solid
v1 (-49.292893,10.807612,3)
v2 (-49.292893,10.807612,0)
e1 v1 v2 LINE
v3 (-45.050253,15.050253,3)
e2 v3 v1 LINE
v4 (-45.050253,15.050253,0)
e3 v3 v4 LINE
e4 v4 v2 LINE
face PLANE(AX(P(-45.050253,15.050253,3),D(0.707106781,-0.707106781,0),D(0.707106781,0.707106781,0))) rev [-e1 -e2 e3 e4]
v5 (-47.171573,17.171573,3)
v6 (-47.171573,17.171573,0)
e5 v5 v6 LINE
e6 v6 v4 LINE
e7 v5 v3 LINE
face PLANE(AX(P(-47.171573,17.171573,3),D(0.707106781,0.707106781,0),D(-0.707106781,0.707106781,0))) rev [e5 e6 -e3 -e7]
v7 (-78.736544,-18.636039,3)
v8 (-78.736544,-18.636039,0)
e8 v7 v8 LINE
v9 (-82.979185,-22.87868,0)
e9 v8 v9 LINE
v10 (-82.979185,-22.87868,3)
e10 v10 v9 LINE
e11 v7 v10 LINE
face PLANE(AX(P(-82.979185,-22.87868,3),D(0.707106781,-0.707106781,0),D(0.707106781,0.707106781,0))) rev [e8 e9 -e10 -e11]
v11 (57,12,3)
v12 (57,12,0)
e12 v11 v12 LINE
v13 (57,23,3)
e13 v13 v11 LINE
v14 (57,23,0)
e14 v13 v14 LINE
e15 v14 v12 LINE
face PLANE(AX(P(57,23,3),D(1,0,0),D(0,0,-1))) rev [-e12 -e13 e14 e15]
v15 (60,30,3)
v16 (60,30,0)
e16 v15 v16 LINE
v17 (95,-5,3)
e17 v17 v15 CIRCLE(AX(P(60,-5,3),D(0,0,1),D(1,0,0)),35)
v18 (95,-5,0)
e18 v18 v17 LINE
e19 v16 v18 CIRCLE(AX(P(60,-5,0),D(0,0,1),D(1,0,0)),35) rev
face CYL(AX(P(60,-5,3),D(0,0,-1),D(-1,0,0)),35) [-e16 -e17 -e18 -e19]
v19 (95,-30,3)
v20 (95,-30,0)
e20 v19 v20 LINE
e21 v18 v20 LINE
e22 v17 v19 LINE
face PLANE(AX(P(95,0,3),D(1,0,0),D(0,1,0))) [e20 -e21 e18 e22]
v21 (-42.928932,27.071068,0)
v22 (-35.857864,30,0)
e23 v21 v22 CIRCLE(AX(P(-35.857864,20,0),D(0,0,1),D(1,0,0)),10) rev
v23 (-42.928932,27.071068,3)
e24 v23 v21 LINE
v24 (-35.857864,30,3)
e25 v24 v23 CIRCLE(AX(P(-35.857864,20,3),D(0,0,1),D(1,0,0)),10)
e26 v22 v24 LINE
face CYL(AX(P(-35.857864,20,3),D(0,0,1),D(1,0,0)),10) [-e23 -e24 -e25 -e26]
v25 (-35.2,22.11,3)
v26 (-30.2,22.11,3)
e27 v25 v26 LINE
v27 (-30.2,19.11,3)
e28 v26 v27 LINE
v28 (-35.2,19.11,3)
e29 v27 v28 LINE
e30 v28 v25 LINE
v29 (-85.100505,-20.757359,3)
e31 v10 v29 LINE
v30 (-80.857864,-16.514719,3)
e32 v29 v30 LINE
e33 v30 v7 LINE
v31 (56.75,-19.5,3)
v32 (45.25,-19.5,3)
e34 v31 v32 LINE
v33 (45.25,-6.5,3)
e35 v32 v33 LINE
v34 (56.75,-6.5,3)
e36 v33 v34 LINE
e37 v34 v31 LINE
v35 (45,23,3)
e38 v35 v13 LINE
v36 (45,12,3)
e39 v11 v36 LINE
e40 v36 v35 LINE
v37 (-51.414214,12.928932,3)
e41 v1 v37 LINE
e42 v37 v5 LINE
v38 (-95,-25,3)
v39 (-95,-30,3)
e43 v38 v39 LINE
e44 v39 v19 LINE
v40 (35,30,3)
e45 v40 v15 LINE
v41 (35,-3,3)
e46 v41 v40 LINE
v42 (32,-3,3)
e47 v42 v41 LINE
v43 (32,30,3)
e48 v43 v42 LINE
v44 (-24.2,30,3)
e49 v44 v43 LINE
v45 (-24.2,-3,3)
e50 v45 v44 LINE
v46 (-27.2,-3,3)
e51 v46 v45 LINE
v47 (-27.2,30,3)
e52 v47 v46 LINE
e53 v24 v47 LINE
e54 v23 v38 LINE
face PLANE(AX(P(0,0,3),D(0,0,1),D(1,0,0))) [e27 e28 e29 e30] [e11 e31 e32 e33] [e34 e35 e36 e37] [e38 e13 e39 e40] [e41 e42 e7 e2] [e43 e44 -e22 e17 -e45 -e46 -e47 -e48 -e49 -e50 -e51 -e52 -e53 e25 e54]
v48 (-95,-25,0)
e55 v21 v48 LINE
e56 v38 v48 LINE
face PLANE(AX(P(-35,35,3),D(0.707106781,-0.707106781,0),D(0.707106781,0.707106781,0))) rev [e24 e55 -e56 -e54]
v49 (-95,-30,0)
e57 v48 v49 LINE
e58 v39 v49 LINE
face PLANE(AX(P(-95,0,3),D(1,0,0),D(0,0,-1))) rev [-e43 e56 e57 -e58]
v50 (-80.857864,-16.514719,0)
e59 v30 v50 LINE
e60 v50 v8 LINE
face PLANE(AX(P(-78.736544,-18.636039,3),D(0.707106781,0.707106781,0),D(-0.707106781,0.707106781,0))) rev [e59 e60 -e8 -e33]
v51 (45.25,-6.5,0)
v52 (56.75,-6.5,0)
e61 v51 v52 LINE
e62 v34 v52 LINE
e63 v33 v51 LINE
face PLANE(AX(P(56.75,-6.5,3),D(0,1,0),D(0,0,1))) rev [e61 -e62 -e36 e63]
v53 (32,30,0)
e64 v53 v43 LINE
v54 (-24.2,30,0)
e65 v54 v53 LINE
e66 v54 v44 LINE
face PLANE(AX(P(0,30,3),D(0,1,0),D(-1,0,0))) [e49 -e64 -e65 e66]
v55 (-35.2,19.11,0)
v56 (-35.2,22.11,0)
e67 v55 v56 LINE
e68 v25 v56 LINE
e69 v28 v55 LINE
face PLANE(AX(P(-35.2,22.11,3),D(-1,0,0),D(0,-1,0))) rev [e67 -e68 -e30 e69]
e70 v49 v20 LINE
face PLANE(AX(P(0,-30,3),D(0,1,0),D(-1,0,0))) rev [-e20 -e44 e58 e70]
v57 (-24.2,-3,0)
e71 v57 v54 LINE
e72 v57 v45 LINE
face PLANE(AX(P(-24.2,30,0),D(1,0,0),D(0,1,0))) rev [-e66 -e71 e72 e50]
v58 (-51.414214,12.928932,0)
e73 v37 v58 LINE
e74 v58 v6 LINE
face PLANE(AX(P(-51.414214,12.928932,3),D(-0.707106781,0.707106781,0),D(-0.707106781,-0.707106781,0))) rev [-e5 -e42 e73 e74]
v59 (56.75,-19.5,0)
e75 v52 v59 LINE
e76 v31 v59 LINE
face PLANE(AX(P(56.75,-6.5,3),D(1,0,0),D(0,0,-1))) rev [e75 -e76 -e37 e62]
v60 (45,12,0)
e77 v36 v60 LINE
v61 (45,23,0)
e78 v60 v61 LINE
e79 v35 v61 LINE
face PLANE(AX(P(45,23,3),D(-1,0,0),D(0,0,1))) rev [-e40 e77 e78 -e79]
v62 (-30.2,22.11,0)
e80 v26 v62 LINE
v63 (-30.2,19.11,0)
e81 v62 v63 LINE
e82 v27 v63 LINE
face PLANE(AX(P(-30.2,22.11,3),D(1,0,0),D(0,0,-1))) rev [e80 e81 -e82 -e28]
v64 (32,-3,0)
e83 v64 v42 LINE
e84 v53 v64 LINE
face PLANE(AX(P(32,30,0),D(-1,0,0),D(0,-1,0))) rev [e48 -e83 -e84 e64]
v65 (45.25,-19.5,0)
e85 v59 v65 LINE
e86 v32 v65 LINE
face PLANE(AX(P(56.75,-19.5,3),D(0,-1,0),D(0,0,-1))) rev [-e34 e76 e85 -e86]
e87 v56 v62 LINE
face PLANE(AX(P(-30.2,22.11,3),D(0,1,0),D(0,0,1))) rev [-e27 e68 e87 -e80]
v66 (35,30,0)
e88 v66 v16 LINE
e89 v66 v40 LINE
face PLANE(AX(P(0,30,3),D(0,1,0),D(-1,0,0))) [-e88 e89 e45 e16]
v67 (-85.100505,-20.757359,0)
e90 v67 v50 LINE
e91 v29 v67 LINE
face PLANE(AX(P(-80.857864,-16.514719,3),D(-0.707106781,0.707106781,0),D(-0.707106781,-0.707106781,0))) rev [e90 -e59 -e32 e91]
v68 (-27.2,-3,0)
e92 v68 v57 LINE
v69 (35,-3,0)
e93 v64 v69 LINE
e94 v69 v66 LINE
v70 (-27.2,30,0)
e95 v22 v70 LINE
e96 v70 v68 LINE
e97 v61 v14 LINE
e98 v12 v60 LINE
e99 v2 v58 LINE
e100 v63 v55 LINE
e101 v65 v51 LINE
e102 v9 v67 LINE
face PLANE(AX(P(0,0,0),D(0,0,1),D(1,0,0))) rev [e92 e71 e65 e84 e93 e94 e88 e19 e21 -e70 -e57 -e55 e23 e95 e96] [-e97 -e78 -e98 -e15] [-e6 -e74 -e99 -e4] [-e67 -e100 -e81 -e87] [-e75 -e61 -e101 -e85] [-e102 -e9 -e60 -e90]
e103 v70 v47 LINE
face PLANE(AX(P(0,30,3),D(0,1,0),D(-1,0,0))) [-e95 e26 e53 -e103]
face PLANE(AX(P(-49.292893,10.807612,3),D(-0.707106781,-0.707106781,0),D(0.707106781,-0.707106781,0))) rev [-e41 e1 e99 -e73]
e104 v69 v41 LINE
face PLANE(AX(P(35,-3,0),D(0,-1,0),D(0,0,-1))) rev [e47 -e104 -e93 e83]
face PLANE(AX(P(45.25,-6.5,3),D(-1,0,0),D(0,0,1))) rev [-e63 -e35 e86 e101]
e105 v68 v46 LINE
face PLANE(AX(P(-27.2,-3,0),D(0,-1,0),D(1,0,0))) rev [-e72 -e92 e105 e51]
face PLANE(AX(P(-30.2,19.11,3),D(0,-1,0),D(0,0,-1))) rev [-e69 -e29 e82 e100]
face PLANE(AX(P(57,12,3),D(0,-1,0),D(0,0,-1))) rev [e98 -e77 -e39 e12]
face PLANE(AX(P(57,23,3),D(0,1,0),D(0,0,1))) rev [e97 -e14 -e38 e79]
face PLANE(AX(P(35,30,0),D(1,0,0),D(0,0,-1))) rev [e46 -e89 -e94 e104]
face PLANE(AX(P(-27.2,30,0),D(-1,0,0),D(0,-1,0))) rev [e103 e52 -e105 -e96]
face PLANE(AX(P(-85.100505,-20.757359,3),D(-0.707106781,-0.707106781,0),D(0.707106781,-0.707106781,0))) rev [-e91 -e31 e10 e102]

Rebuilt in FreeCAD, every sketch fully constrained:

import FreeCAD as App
import Part
import Sketcher
Q = App.Units.Quantity


def edges_at(feature, points):
    """Names of the edges that pass closest to the given points."""
    edges = feature.Shape.Edges
    near = lambda p: min(range(len(edges)), key=lambda i: edges[i].distToShape(Part.Vertex(*p))[0])
    return sorted({f"Edge{near(p) + 1}" for p in points})


def add_polygon(sketch, points):
    """Adds a closed chain of lines whose ends are joined by coincident constraints."""
    first, n = sketch.GeometryCount, len(points)
    for a, b in zip(points, points[1:] + points[:1]):
        sketch.addGeometry(Part.LineSegment(App.Vector(*a, 0), App.Vector(*b, 0)), False)
    for i in range(n):
        sketch.addConstraint(Sketcher.Constraint("Coincident", first + i, 2, first + (i + 1) % n, 1))

doc = App.newDocument("Part")
body = doc.addObject("PartDesign::Body", "Body")

# Sketch on XY plane
sketch1 = body.newObject("Sketcher::SketchObject", "Sketch")
sketch1.AttachmentSupport = (doc.getObject("XY_Plane"), [""])
sketch1.MapMode = "FlatFace"
add_polygon(sketch1, [(-40, 30), (-95, -25), (-95, -30), (95, -30), (95, 30)])  # lines 0-4
sketch1.addConstraint(Sketcher.Constraint("Vertical", 1))
sketch1.addConstraint(Sketcher.Constraint("Horizontal", 2))
sketch1.addConstraint(Sketcher.Constraint("Vertical", 3))
sketch1.addConstraint(Sketcher.Constraint("Horizontal", 4))
sketch1.addConstraint(Sketcher.Constraint("Symmetric", 1, 2, 3, 2, -1, 1))
sketch1.addConstraint(Sketcher.Constraint("DistanceX", 2, 1, 2, 2, Q("190 mm")))
sketch1.addConstraint(Sketcher.Constraint("DistanceX", 4, 2, 4, 1, Q("135 mm")))
sketch1.addConstraint(Sketcher.Constraint("DistanceY", 1, 2, 1, 1, Q("5 mm")))
sketch1.addConstraint(Sketcher.Constraint("DistanceY", 3, 1, 3, 2, Q("60 mm")))
pad1 = body.newObject("PartDesign::Pad", "Pad")
pad1.Profile = sketch1
pad1.Length = 3
doc.recompute()

fillet = body.newObject("PartDesign::Fillet", "Fillet")
fillet.Base = (pad1, edges_at(pad1, [(95, 30, 1.5)]))
fillet.Radius = 35

# Sketch on XY plane
sketch2 = body.newObject("Sketcher::SketchObject", "Sketch001")
sketch2.AttachmentSupport = (doc.getObject("XY_Plane"), [""])
sketch2.MapMode = "FlatFace"
sketch2.AttachmentOffset = App.Placement(App.Vector(0, 0, 3), App.Rotation())
add_polygon(sketch2, [(32, 30), (32, -3), (35, -3), (35, 30)])  # lines 0-3
add_polygon(sketch2, [(-27.2, 30), (-27.2, -3), (-24.2, -3), (-24.2, 30)])  # lines 4-7
sketch2.addConstraint(Sketcher.Constraint("Vertical", 0))
sketch2.addConstraint(Sketcher.Constraint("Horizontal", 1))
sketch2.addConstraint(Sketcher.Constraint("Vertical", 2))
sketch2.addConstraint(Sketcher.Constraint("Horizontal", 3))
sketch2.addConstraint(Sketcher.Constraint("Vertical", 4))
sketch2.addConstraint(Sketcher.Constraint("Horizontal", 5))
sketch2.addConstraint(Sketcher.Constraint("Vertical", 6))
sketch2.addConstraint(Sketcher.Constraint("Horizontal", 7))
sketch2.addConstraint(Sketcher.Constraint("Horizontal", 1, 2, 4, 2))
sketch2.addConstraint(Sketcher.Constraint("Horizontal", 3, 2, 6, 2))
sketch2.addConstraint(Sketcher.Constraint("Equal", 3, 5))
sketch2.addConstraint(Sketcher.Constraint("DistanceX", 1, 1, 1, 2, Q("3 mm")))
sketch2.addConstraint(Sketcher.Constraint("DistanceY", 0, 2, 0, 1, Q("33 mm")))
sketch2.addConstraint(Sketcher.Constraint("DistanceX", -1, 1, 0, 2, Q("32 mm")))
sketch2.addConstraint(Sketcher.Constraint("DistanceY", 0, 2, -1, 1, Q("3 mm")))
sketch2.addConstraint(Sketcher.Constraint("DistanceX", 4, 2, -1, 1, Q("27.2 mm")))
pocket1 = body.newObject("PartDesign::Pocket", "Pocket")
pocket1.Profile = sketch2
pocket1.Type = "ThroughAll"

# Sketch on XY plane
sketch3 = body.newObject("Sketcher::SketchObject", "Sketch002")
sketch3.AttachmentSupport = (doc.getObject("XY_Plane"), [""])
sketch3.MapMode = "FlatFace"
add_polygon(sketch3, [(57, -6), (57, -20), (45, -20), (45, -6)])  # lines 0-3
sketch3.addConstraint(Sketcher.Constraint("Vertical", 0))
sketch3.addConstraint(Sketcher.Constraint("Horizontal", 1))
sketch3.addConstraint(Sketcher.Constraint("Vertical", 2))
sketch3.addConstraint(Sketcher.Constraint("Horizontal", 3))
sketch3.addConstraint(Sketcher.Constraint("DistanceY", 0, 2, 0, 1, Q("13 mm")))
sketch3.addConstraint(Sketcher.Constraint("DistanceX", 1, 2, 1, 1, Q("11.5 mm")))
sketch3.addConstraint(Sketcher.Constraint("DistanceY", 0, 2, -1, 1, Q("19.5 mm")))
sketch3.addConstraint(Sketcher.Constraint("DistanceX", -1, 1, 0, 2, Q("56.75 mm")))
pocket2 = body.newObject("PartDesign::Pocket", "Pocket001")
pocket2.Profile = sketch3
pocket2.Type = "ThroughAll"
pocket2.Reversed = True

# Sketch on XY plane
sketch4 = body.newObject("Sketcher::SketchObject", "Sketch003")
sketch4.AttachmentSupport = (doc.getObject("XY_Plane"), [""])
sketch4.MapMode = "FlatFace"
add_polygon(sketch4, [(57, 23), (57, 12), (45, 12), (45, 23)])  # lines 0-3
sketch4.addConstraint(Sketcher.Constraint("Vertical", 0))
sketch4.addConstraint(Sketcher.Constraint("Horizontal", 1))
sketch4.addConstraint(Sketcher.Constraint("Vertical", 2))
sketch4.addConstraint(Sketcher.Constraint("Horizontal", 3))
sketch4.addConstraint(Sketcher.Constraint("DistanceX", 1, 2, 1, 1, Q("12 mm")))
sketch4.addConstraint(Sketcher.Constraint("DistanceY", 0, 2, 0, 1, Q("11 mm")))
sketch4.addConstraint(Sketcher.Constraint("DistanceX", -1, 1, 0, 2, Q("57 mm")))
sketch4.addConstraint(Sketcher.Constraint("DistanceY", -1, 1, 0, 2, Q("12 mm")))
pocket3 = body.newObject("PartDesign::Pocket", "Pocket002")
pocket3.Profile = sketch4
pocket3.Type = "ThroughAll"
pocket3.Reversed = True
doc.recompute()

fillet2 = body.newObject("PartDesign::Fillet", "Fillet001")
fillet2.Base = (pocket3, edges_at(pocket3, [(-40, 30, 1.5)]))
fillet2.Radius = 10

# Sketch on XY plane
sketch5 = body.newObject("Sketcher::SketchObject", "Sketch004")
sketch5.AttachmentSupport = (doc.getObject("XY_Plane"), [""])
sketch5.MapMode = "FlatFace"
add_polygon(sketch5, [(-47.2, 17.2), (-45.1, 15.1), (-49.3, 10.8), (-51.4, 12.9)])  # lines 0-3
add_polygon(sketch5, [(-83, -22.9), (-85.1, -20.8), (-80.9, -16.5), (-78.7, -18.6)])  # lines 4-7
sketch5.addConstraint(Sketcher.Constraint("Perpendicular", 0, 1))
sketch5.addConstraint(Sketcher.Constraint("Perpendicular", 1, 2))
sketch5.addConstraint(Sketcher.Constraint("Perpendicular", 2, 3))
sketch5.addConstraint(Sketcher.Constraint("Perpendicular", 3, 4))
sketch5.addConstraint(Sketcher.Constraint("Perpendicular", 4, 5))
sketch5.addConstraint(Sketcher.Constraint("Perpendicular", 5, 6))
sketch5.addConstraint(Sketcher.Constraint("Perpendicular", 6, 7))
sketch5.addConstraint(Sketcher.Constraint("Equal", 2, 4))
sketch5.addConstraint(Sketcher.Constraint("Equal", 3, 5))
sketch5.addConstraint(Sketcher.Constraint("Angle", 0, Q("-45 deg")))
sketch5.addConstraint(Sketcher.Constraint("Distance", 0, Q("3 mm")))
sketch5.addConstraint(Sketcher.Constraint("Distance", 1, Q("6 mm")))
sketch5.addConstraint(Sketcher.Constraint("DistanceY", -1, 1, 1, 2, Q("10.807612 mm")))
sketch5.addConstraint(Sketcher.Constraint("DistanceY", 4, 2, -1, 1, Q("20.757359 mm")))
sketch5.addConstraint(Sketcher.Constraint("DistanceX", 4, 2, 2, 2, Q("33.686292 mm")))
sketch5.addConstraint(Sketcher.Constraint("DistanceX", 0, 2, -1, 1, Q("45.050253 mm")))
pocket4 = body.newObject("PartDesign::Pocket", "Pocket003")
pocket4.Profile = sketch5
pocket4.Type = "ThroughAll"
pocket4.Reversed = True

# Sketch on XY plane
sketch6 = body.newObject("Sketcher::SketchObject", "Sketch005")
sketch6.AttachmentSupport = (doc.getObject("XY_Plane"), [""])
sketch6.MapMode = "FlatFace"
add_polygon(sketch6, [(-30.2, 22.1), (-30.2, 19.1), (-35.2, 19.1), (-35.2, 22.1)])  # lines 0-3
sketch6.addConstraint(Sketcher.Constraint("Vertical", 0))
sketch6.addConstraint(Sketcher.Constraint("Horizontal", 1))
sketch6.addConstraint(Sketcher.Constraint("Vertical", 2))
sketch6.addConstraint(Sketcher.Constraint("Horizontal", 3))
sketch6.addConstraint(Sketcher.Constraint("DistanceX", 1, 2, 1, 1, Q("5 mm")))
sketch6.addConstraint(Sketcher.Constraint("DistanceY", 0, 2, 0, 1, Q("3 mm")))
sketch6.addConstraint(Sketcher.Constraint("DistanceX", 0, 2, -1, 1, Q("30.2 mm")))
sketch6.addConstraint(Sketcher.Constraint("DistanceY", -1, 1, 0, 2, Q("19.11 mm")))
pocket5 = body.newObject("PartDesign::Pocket", "Pocket004")
pocket5.Profile = sketch6
pocket5.Type = "ThroughAll"
pocket5.Reversed = True

doc.recompute()
